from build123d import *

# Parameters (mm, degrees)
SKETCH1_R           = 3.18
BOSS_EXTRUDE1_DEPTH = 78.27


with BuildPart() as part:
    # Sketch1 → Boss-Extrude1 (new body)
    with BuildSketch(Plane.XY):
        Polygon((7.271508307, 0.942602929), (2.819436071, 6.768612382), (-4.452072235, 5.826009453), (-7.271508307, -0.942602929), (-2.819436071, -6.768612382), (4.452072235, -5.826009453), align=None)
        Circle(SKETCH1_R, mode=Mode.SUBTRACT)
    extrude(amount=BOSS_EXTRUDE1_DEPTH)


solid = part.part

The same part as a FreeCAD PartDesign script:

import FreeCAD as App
import Part
import Sketcher
from FreeCAD import Vector
Q = App.Units.Quantity


def add_polygon(sketch, points):
    """Adds a closed chain of lines whose ends are joined by coincident constraints."""
    first, n = sketch.GeometryCount, len(points)
    for a, b in zip(points, points[1:] + points[:1]):
        sketch.addGeometry(Part.LineSegment(App.Vector(*a, 0), App.Vector(*b, 0)), False)
    for i in range(n):
        sketch.addConstraint(Sketcher.Constraint("Coincident", first + i, 2, first + (i + 1) % n, 1))

doc = App.newDocument("Part")
body = doc.addObject("PartDesign::Body", "Body")

# Sketch on XY plane
sketch1 = body.newObject("Sketcher::SketchObject", "Sketch")
sketch1.AttachmentSupport = (doc.getObject("XY_Plane"), [""])
sketch1.MapMode = "FlatFace"
add_polygon(sketch1, [(7.3, 0.9), (2.8, 6.8), (-4.5, 5.8), (-7.3, -0.9), (-2.8, -6.8), (4.5, -5.8)])  # lines 0-5
sketch1.addGeometry(Part.Circle(Vector(0, 0, 0), Vector(0, 0, 1), 3.2), False)  # 6
sketch1.addConstraint(Sketcher.Constraint("Coincident", 6, 3, -1, 1))
sketch1.addConstraint(Sketcher.Constraint("Symmetric", 0, 2, 3, 2, -1, 1))
sketch1.addConstraint(Sketcher.Constraint("Symmetric", 1, 2, 4, 2, -1, 1))
sketch1.addConstraint(Sketcher.Constraint("Symmetric", 2, 2, 5, 2, -1, 1))
sketch1.addConstraint(Sketcher.Constraint("Equal", 0, 1))
sketch1.addConstraint(Sketcher.Constraint("Equal", 1, 2))
sketch1.addConstraint(Sketcher.Constraint("Diameter", 6, Q("6.36 mm")))
sketch1.addConstraint(Sketcher.Constraint("Distance", 0, Q("7.332348 mm")))
sketch1.addConstraint(Sketcher.Constraint("DistanceY", -1, 1, 1, 2, Q("5.826009 mm")))
sketch1.addConstraint(Sketcher.Constraint("DistanceX", 2, 2, -1, 1, Q("7.271508 mm")))
sketch1.addConstraint(Sketcher.Constraint("DistanceX", 1, 2, 0, 2, Q("7.271508 mm")))
pad1 = body.newObject("PartDesign::Pad", "Pad")
pad1.Profile = sketch1
pad1.Length = 78.27

doc.recompute()
